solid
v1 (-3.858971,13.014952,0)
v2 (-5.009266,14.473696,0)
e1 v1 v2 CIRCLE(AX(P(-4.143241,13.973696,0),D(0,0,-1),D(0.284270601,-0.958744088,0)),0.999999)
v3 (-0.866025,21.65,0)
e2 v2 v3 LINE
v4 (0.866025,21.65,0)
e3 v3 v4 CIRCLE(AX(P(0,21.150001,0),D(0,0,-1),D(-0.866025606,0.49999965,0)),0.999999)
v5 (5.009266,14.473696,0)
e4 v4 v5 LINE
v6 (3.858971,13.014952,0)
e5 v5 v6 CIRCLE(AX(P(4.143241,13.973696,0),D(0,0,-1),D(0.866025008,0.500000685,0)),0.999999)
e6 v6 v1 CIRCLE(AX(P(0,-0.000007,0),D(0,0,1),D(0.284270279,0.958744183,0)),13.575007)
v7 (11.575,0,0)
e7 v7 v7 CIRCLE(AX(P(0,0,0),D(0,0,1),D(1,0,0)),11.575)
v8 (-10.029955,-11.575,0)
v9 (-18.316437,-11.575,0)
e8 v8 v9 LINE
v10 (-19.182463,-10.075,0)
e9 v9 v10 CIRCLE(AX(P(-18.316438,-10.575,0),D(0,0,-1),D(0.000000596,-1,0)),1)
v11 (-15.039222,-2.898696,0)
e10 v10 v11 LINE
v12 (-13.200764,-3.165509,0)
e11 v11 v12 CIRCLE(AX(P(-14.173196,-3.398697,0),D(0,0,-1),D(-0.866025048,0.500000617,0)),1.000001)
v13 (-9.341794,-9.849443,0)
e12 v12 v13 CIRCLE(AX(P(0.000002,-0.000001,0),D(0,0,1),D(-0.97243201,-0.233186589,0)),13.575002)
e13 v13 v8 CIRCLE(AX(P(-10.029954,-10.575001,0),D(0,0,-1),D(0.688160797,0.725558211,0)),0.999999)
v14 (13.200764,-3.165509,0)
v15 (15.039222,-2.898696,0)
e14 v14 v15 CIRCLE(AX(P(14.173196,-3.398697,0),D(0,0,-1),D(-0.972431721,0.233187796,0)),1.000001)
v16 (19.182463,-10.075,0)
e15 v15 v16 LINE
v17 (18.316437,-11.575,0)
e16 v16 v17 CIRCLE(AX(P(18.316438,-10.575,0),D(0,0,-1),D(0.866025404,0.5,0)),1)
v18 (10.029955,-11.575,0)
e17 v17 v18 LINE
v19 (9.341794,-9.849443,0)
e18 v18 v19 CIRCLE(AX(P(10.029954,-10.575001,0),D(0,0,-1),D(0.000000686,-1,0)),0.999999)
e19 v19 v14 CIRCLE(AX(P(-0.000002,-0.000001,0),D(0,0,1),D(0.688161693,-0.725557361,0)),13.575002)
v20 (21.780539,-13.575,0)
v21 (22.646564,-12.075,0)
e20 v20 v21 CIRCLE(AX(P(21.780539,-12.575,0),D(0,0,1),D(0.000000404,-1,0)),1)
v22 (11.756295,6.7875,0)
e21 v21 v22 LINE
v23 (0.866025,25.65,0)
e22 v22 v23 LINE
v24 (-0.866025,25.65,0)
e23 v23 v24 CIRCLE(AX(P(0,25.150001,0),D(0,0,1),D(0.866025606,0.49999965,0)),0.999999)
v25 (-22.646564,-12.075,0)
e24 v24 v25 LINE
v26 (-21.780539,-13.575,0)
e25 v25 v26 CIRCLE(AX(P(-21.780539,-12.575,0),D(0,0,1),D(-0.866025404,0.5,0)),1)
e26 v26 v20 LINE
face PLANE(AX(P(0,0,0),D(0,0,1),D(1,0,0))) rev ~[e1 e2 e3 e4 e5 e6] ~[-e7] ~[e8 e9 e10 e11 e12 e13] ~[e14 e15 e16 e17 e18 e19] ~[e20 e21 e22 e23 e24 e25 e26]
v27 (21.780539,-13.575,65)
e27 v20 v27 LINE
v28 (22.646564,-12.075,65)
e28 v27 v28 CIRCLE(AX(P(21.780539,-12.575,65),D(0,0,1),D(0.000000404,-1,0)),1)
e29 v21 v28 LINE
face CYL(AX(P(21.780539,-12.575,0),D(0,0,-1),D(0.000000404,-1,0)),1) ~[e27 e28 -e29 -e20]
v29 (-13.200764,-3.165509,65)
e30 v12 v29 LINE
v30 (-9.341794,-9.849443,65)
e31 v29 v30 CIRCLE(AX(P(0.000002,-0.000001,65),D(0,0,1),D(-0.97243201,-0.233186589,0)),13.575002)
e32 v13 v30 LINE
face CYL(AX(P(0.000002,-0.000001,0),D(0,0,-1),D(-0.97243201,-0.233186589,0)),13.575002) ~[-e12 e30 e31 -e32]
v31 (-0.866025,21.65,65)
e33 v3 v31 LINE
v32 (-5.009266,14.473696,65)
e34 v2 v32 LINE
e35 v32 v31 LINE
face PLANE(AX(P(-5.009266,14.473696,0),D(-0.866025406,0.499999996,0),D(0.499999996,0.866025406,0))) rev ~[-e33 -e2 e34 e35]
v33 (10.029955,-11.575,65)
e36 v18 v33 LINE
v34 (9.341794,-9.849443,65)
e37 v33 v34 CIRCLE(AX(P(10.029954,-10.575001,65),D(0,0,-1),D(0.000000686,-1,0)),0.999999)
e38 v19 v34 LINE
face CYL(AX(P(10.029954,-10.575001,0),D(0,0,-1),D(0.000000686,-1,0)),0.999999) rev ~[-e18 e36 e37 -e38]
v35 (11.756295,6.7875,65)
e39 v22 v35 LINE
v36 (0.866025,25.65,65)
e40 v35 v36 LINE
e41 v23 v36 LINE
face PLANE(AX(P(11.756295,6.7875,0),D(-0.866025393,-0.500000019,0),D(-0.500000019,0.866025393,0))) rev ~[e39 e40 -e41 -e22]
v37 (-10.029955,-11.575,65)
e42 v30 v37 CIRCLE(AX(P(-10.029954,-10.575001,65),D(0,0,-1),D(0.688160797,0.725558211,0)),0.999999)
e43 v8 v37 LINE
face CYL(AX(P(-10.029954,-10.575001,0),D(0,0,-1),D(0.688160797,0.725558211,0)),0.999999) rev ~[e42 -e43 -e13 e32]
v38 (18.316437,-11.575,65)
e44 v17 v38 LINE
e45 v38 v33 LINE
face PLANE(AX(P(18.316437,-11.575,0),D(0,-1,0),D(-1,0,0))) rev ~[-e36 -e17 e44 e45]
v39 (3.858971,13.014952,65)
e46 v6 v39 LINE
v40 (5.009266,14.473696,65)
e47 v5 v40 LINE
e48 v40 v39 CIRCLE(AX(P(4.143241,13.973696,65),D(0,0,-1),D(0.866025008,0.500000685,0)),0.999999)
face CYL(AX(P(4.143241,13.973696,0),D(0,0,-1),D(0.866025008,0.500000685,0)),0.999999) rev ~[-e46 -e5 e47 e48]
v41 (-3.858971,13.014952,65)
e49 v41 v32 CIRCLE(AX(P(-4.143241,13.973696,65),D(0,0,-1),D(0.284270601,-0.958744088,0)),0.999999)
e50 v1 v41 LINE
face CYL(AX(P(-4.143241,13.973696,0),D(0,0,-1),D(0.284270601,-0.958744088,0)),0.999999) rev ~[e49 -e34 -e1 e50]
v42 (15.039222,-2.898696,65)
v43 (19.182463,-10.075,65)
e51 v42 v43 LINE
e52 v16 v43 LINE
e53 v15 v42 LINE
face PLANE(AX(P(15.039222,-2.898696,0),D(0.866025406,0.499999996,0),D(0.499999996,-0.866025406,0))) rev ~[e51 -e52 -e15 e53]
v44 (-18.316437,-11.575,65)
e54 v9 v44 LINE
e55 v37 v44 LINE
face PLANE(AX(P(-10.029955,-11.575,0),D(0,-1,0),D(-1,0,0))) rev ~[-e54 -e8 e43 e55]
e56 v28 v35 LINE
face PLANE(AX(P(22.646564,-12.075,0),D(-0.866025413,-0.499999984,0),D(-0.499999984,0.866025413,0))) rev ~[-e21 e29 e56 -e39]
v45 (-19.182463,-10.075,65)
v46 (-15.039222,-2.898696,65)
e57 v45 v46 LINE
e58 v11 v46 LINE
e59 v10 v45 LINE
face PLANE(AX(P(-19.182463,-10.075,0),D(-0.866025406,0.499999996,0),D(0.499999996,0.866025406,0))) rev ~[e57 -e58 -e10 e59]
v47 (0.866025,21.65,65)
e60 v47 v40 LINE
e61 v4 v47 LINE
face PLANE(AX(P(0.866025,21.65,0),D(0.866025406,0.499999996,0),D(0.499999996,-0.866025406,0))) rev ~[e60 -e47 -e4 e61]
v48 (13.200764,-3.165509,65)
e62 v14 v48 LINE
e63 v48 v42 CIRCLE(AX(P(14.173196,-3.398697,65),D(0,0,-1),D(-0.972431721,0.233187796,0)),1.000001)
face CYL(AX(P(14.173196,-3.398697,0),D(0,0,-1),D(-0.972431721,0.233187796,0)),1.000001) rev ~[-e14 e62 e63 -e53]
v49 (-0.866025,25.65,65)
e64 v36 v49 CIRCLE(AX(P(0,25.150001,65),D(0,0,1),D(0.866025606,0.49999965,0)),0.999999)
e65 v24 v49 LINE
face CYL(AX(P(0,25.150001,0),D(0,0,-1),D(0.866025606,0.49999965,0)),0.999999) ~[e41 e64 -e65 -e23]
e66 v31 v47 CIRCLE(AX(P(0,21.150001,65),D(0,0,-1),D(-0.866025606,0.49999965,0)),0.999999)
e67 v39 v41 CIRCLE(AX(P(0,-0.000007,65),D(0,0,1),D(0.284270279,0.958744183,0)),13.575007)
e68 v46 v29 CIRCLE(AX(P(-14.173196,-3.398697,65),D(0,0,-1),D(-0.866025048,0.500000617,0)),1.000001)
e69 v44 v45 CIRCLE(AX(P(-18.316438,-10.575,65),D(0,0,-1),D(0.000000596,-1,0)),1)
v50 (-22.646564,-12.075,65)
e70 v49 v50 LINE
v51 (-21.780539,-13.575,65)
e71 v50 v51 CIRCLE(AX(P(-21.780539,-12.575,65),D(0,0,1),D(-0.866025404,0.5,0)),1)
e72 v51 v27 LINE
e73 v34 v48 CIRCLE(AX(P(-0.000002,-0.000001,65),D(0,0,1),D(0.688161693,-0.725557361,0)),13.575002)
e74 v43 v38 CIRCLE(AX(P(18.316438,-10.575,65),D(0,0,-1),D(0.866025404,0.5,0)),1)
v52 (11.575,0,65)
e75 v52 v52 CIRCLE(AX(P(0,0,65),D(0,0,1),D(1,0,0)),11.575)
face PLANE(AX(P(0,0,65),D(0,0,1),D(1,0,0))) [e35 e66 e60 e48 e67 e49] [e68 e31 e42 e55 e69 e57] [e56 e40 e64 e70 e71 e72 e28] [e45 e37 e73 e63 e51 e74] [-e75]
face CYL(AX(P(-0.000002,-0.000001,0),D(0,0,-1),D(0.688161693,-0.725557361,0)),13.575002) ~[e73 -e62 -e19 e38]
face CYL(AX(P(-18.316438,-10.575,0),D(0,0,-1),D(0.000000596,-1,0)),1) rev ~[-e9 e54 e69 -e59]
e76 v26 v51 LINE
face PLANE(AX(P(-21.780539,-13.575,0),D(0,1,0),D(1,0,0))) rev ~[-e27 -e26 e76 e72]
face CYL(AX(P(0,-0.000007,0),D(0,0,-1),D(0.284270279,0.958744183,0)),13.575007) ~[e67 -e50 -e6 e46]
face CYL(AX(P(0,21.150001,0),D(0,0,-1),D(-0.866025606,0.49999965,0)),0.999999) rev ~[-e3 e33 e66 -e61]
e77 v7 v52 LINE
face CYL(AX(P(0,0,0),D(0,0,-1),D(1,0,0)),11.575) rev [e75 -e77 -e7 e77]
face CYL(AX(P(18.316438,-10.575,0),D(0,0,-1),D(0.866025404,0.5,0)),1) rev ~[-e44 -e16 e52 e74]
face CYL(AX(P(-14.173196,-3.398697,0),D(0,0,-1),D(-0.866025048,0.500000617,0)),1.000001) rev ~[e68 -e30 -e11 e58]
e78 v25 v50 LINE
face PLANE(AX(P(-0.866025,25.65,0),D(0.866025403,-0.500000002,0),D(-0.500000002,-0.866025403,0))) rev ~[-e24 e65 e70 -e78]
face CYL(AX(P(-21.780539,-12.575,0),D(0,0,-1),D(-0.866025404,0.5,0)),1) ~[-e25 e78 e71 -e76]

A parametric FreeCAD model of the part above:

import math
import FreeCAD as App
import Part
import Sketcher
from FreeCAD import Vector
Q = App.Units.Quantity

doc = App.newDocument("Part")
params = doc.addObject("Spreadsheet::Sheet", "Params")
for row, (alias, value) in enumerate([
    ("sketch1_radius", "0.999999 mm"),
    ("sketch1_diameter", "23.15 mm"),
    ("pad1_length", "65 mm"),
], start=1):
    params.set(f"A{row}", alias)
    params.set(f"B{row}", "=" + value)
    params.setAlias(f"B{row}", alias)

body = doc.addObject("PartDesign::Body", "Body")

sketch1 = body.newObject("Sketcher::SketchObject", "Sketch")
sketch1.AttachmentSupport = (doc.getObject("XY_Plane"), [""])
sketch1.MapMode = "FlatFace"
sketch1.addGeometry([
    Part.LineSegment(Vector(11.8, 6.8, 0), Vector(0.9, 25.6, 0)),
    Part.ArcOfCircle(Part.Circle(Vector(0, 25.2, 0), Vector(0, 0, 1), 1), math.radians(30), math.radians(150)),
    Part.LineSegment(Vector(-0.9, 25.6, 0), Vector(-22.6, -12.1, 0)),
    Part.ArcOfCircle(Part.Circle(Vector(-21.8, -12.6, 0), Vector(0, 0, 1), 1), math.radians(150), math.radians(270)),
    Part.LineSegment(Vector(-21.8, -13.6, 0), Vector(21.8, -13.6, 0)),
    Part.ArcOfCircle(Part.Circle(Vector(21.8, -12.6, 0), Vector(0, 0, 1), 1), math.radians(-90), math.radians(30)),
    Part.LineSegment(Vector(22.6, -12.1, 0), Vector(11.8, 6.8, 0)),
    Part.LineSegment(Vector(-10, -11.6, 0), Vector(-18.3, -11.6, 0)),
    Part.ArcOfCircle(Part.Circle(Vector(-18.3, -10.6, 0), Vector(0, 0, 1), 1), math.radians(150), math.radians(270)),
    Part.LineSegment(Vector(-19.2, -10.1, 0), Vector(-15, -2.9, 0)),
    Part.ArcOfCircle(Part.Circle(Vector(-14.2, -3.4, 0), Vector(0, 0, 1), 1), math.radians(13), math.radians(150)),
    Part.ArcOfCircle(Part.Circle(Vector(0, 0, 0), Vector(0, 0, 1), 13.6), math.radians(-167), math.radians(-133)),
    Part.ArcOfCircle(Part.Circle(Vector(-10, -10.6, 0), Vector(0, 0, 1), 1), math.radians(-90), math.radians(47)),
    Part.LineSegment(Vector(15, -2.9, 0), Vector(19.2, -10.1, 0)),
    Part.ArcOfCircle(Part.Circle(Vector(18.3, -10.6, 0), Vector(0, 0, 1), 1), math.radians(-90), math.radians(30)),
    Part.LineSegment(Vector(18.3, -11.6, 0), Vector(10, -11.6, 0)),
    Part.ArcOfCircle(Part.Circle(Vector(10, -10.6, 0), Vector(0, 0, 1), 1), math.radians(133), math.radians(270)),
    Part.ArcOfCircle(Part.Circle(Vector(0, 0, 0), Vector(0, 0, 1), 13.6), math.radians(-47), math.radians(-13)),
    Part.ArcOfCircle(Part.Circle(Vector(14.2, -3.4, 0), Vector(0, 0, 1), 1), math.radians(30), math.radians(167)),
    Part.Circle(Vector(0, 0, 0), Vector(0, 0, 1), 11.6),
    Part.LineSegment(Vector(-5, 14.5, 0), Vector(-0.9, 21.6, 0)),
    Part.ArcOfCircle(Part.Circle(Vector(0, 21.2, 0), Vector(0, 0, 1), 1), math.radians(30), math.radians(150)),
    Part.LineSegment(Vector(0.9, 21.6, 0), Vector(5, 14.5, 0)),
    Part.ArcOfCircle(Part.Circle(Vector(4.1, 14, 0), Vector(0, 0, 1), 1), math.radians(-107), math.radians(30)),
    Part.ArcOfCircle(Part.Circle(Vector(0, 0, 0), Vector(0, 0, 1), 13.6), math.radians(73), math.radians(107)),
    Part.ArcOfCircle(Part.Circle(Vector(-4.1, 14, 0), Vector(0, 0, 1), 1), math.radians(150), math.radians(287)),
], False)
sketch1.addConstraint([
    Sketcher.Constraint("Tangent", 0, 2, 1, 1),
    Sketcher.Constraint("Tangent", 1, 2, 2, 1),
    Sketcher.Constraint("Tangent", 2, 2, 3, 1),
    Sketcher.Constraint("Tangent", 3, 2, 4, 1),
    Sketcher.Constraint("Tangent", 4, 2, 5, 1),
    Sketcher.Constraint("Tangent", 5, 2, 6, 1),
    Sketcher.Constraint("Coincident", 6, 2, 0, 1),
    Sketcher.Constraint("Tangent", 7, 2, 8, 2),
    Sketcher.Constraint("Tangent", 8, 1, 9, 1),
    Sketcher.Constraint("Tangent", 9, 2, 10, 2),
    Sketcher.Constraint("Tangent", 10, 1, 11, 1),
    Sketcher.Constraint("Tangent", 11, 2, 12, 2),
    Sketcher.Constraint("Tangent", 12, 1, 7, 1),
    Sketcher.Constraint("Tangent", 13, 2, 14, 2),
    Sketcher.Constraint("Tangent", 14, 1, 15, 1),
    Sketcher.Constraint("Tangent", 15, 2, 16, 2),
    Sketcher.Constraint("Tangent", 16, 1, 17, 1),
    Sketcher.Constraint("Tangent", 17, 2, 18, 2),
    Sketcher.Constraint("Tangent", 18, 1, 13, 1),
    Sketcher.Constraint("Tangent", 20, 2, 21, 2),
    Sketcher.Constraint("Tangent", 21, 1, 22, 1),
    Sketcher.Constraint("Tangent", 22, 2, 23, 2),
    Sketcher.Constraint("Tangent", 23, 1, 24, 1),
    Sketcher.Constraint("Tangent", 24, 2, 25, 2),
    Sketcher.Constraint("Tangent", 25, 1, 20, 1),
    Sketcher.Constraint("Horizontal", 4),
    Sketcher.Constraint("Horizontal", 7),
    Sketcher.Constraint("Horizontal", 15),
    Sketcher.Constraint("Coincident", 11, 3, -1, 1),
    Sketcher.Constraint("Coincident", 17, 3, -1, 1),
    Sketcher.Constraint("Coincident", 19, 3, -1, 1),
    Sketcher.Constraint("Coincident", 24, 3, -1, 1),
    Sketcher.Constraint("Equal", 1, 3),
    Sketcher.Constraint("Equal", 3, 5),
    Sketcher.Constraint("Equal", 5, 8),
    Sketcher.Constraint("Equal", 8, 10),
    Sketcher.Constraint("Equal", 10, 12),
    Sketcher.Constraint("Equal", 12, 14),
    Sketcher.Constraint("Equal", 14, 16),
    Sketcher.Constraint("Equal", 11, 17),
    Sketcher.Constraint("Equal", 16, 18),
    Sketcher.Constraint("Equal", 18, 21),
    Sketcher.Constraint("Equal", 21, 23),
    Sketcher.Constraint("Equal", 23, 25),
    Sketcher.Constraint("Symmetric", 8, 3, 14, 3, -2),
    Sketcher.Constraint("Symmetric", 0, 2, 1, 2, -2),
    Sketcher.Constraint("Symmetric", 20, 2, 21, 1, -2),
    Sketcher.Constraint("Parallel", 0, 6),
    Sketcher.Constraint("Parallel", 2, 9),
    Sketcher.Constraint("Parallel", 6, 13),
    Sketcher.Constraint("Parallel", 9, 20),
    Sketcher.Constraint("Equal", 0, 6),
    Sketcher.Constraint("Equal", 13, 20),
    Sketcher.Constraint("Radius", 1, Q("0.999999 mm")),
    Sketcher.Constraint("Diameter", 19, Q("23.15 mm")),
    Sketcher.Constraint("Angle", 0, Q("120.000001 deg")),
    Sketcher.Constraint("Radius", 11, Q("13.575002 mm")),
    Sketcher.Constraint("DistanceY", 3, 3, 8, 3, Q("2 mm")),
    Sketcher.Constraint("DistanceY", 21, 3, 1, 3, Q("4 mm")),
    Sketcher.Constraint("DistanceY", -1, 1, 1, 3, Q("25.150001 mm")),
    Sketcher.Constraint("DistanceY", 3, 3, -1, 1, Q("12.575 mm")),
    Sketcher.Constraint("Radius", 24, Q("13.575007 mm")),
])
sketch1.setExpression("Constraints[53]", "Params.sketch1_radius")
sketch1.setExpression("Constraints[54]", "Params.sketch1_diameter")
pad1 = body.newObject("PartDesign::Pad", "Pad")
pad1.Profile = sketch1
pad1.setExpression("Length", "Params.pad1_length")

doc.recompute()
